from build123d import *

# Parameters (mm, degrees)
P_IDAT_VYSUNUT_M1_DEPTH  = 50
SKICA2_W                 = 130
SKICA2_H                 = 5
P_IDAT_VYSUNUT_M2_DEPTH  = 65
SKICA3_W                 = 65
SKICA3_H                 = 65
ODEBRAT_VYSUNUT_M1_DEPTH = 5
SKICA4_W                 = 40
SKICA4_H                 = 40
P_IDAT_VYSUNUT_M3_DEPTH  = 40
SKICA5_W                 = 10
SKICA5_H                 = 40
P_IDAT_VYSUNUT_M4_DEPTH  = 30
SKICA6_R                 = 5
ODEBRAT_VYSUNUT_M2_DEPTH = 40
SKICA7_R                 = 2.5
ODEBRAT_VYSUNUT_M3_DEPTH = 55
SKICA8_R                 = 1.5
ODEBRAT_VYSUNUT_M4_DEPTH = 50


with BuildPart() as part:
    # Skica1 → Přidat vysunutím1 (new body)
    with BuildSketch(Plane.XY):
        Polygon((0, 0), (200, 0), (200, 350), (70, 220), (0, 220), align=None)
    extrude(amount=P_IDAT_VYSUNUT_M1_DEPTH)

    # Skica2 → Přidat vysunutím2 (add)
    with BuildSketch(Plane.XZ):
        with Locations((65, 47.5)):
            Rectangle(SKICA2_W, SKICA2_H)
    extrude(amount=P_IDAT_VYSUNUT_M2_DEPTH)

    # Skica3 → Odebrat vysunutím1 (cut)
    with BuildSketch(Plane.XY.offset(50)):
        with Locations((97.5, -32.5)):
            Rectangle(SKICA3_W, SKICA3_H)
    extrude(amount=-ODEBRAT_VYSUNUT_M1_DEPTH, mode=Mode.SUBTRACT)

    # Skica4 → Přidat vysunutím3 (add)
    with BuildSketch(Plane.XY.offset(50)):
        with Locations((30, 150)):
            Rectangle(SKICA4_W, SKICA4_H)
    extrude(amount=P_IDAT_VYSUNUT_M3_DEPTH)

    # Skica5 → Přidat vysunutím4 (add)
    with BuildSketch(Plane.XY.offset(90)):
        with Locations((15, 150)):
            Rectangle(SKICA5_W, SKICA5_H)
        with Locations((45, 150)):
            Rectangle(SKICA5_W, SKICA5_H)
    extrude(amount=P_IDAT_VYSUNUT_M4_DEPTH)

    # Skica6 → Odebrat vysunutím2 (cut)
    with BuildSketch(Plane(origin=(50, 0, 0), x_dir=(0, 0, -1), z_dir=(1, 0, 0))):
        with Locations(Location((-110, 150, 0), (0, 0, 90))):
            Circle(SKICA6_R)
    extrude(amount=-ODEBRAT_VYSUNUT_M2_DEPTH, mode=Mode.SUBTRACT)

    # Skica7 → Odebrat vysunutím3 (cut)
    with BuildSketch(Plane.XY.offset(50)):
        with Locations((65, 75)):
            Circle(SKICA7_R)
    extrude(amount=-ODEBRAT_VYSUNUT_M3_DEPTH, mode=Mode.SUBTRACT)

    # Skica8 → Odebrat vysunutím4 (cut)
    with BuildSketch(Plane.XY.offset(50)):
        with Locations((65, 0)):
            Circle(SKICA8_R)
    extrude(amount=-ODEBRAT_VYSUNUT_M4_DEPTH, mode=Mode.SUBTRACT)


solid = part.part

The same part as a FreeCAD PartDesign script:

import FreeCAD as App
import Part
import Sketcher
from FreeCAD import Vector
Q = App.Units.Quantity


def add_polygon(sketch, points):
    """Adds a closed chain of lines whose ends are joined by coincident constraints."""
    first, n = sketch.GeometryCount, len(points)
    for a, b in zip(points, points[1:] + points[:1]):
        sketch.addGeometry(Part.LineSegment(App.Vector(*a, 0), App.Vector(*b, 0)), False)
    for i in range(n):
        sketch.addConstraint(Sketcher.Constraint("Coincident", first + i, 2, first + (i + 1) % n, 1))

doc = App.newDocument("Part")
body = doc.addObject("PartDesign::Body", "Body")

sketch1 = body.newObject("Sketcher::SketchObject", "Sketch")
sketch1.AttachmentSupport = (doc.getObject("XY_Plane"), [""])
sketch1.MapMode = "FlatFace"
add_polygon(sketch1, [(0, 0), (200, 0), (200, 350), (70, 220), (0, 220)])
sketch1.addConstraint([
    Sketcher.Constraint("Horizontal", 0),
    Sketcher.Constraint("Vertical", 1),
    Sketcher.Constraint("Horizontal", 3),
    Sketcher.Constraint("Vertical", 4),
    Sketcher.Constraint("Coincident", 4, 2, -1, 1),
    Sketcher.Constraint("DistanceX", 0, 1, 0, 2, Q("200 mm")),
    Sketcher.Constraint("DistanceX", 3, 2, 3, 1, Q("70 mm")),
    Sketcher.Constraint("DistanceY", 1, 1, 1, 2, Q("350 mm")),
    Sketcher.Constraint("DistanceY", 4, 2, 4, 1, Q("220 mm")),
])
pad1 = body.newObject("PartDesign::Pad", "Pad")
pad1.Profile = sketch1
pad1.Length = 50

sketch2 = body.newObject("Sketcher::SketchObject", "Sketch001")
sketch2.AttachmentSupport = (doc.getObject("XZ_Plane"), [""])
sketch2.MapMode = "FlatFace"
add_polygon(sketch2, [(0, 50), (0, 45), (130, 45), (130, 50)])
sketch2.addConstraint([
    Sketcher.Constraint("Vertical", 0),
    Sketcher.Constraint("Horizontal", 1),
    Sketcher.Constraint("Vertical", 2),
    Sketcher.Constraint("Horizontal", 3),
    Sketcher.Constraint("PointOnObject", 0, 2, -2),
    Sketcher.Constraint("DistanceX", 1, 1, 1, 2, Q("130 mm")),
    Sketcher.Constraint("DistanceY", 0, 2, 0, 1, Q("5 mm")),
    Sketcher.Constraint("DistanceY", -1, 1, 0, 2, Q("45 mm")),
])
pad2 = body.newObject("PartDesign::Pad", "Pad001")
pad2.Profile = sketch2
pad2.Length = 65

sketch3 = body.newObject("Sketcher::SketchObject", "Sketch002")
sketch3.AttachmentSupport = (doc.getObject("XY_Plane"), [""])
sketch3.MapMode = "FlatFace"
sketch3.AttachmentOffset = App.Placement(Vector(0, 0, 50), App.Rotation())
add_polygon(sketch3, [(65, 0), (65, -65), (130, -65), (130, 0)])
sketch3.addConstraint([
    Sketcher.Constraint("Vertical", 0),
    Sketcher.Constraint("Horizontal", 1),
    Sketcher.Constraint("Vertical", 2),
    Sketcher.Constraint("Horizontal", 3),
    Sketcher.Constraint("PointOnObject", 2, 2, -1),
    Sketcher.Constraint("Equal", 3, 0),
    Sketcher.Constraint("DistanceX", 1, 1, 1, 2, Q("65 mm")),
    Sketcher.Constraint("DistanceX", -1, 1, 0, 2, Q("65 mm")),
])
pocket1 = body.newObject("PartDesign::Pocket", "Pocket")
pocket1.Profile = sketch3
pocket1.Length = 5

sketch4 = body.newObject("Sketcher::SketchObject", "Sketch003")
sketch4.AttachmentSupport = (doc.getObject("XY_Plane"), [""])
sketch4.MapMode = "FlatFace"
sketch4.AttachmentOffset = App.Placement(Vector(0, 0, 50), App.Rotation())
add_polygon(sketch4, [(10, 170), (10, 130), (50, 130), (50, 170)])
sketch4.addConstraint([
    Sketcher.Constraint("Vertical", 0),
    Sketcher.Constraint("Horizontal", 1),
    Sketcher.Constraint("Vertical", 2),
    Sketcher.Constraint("Horizontal", 3),
    Sketcher.Constraint("Equal", 3, 0),
    Sketcher.Constraint("DistanceX", 1, 1, 1, 2, Q("40 mm")),
    Sketcher.Constraint("DistanceX", -1, 1, 0, 2, Q("10 mm")),
    Sketcher.Constraint("DistanceY", -1, 1, 0, 2, Q("130 mm")),
])
pad3 = body.newObject("PartDesign::Pad", "Pad002")
pad3.Profile = sketch4
pad3.Length = 40

sketch5 = body.newObject("Sketcher::SketchObject", "Sketch004")
sketch5.AttachmentSupport = (doc.getObject("XY_Plane"), [""])
sketch5.MapMode = "FlatFace"
sketch5.AttachmentOffset = App.Placement(Vector(0, 0, 90), App.Rotation())
add_polygon(sketch5, [(10, 170), (10, 130), (20, 130), (20, 170)])
add_polygon(sketch5, [(40, 170), (40, 130), (50, 130), (50, 170)])
sketch5.addConstraint([
    Sketcher.Constraint("Vertical", 0),
    Sketcher.Constraint("Horizontal", 1),
    Sketcher.Constraint("Vertical", 2),
    Sketcher.Constraint("Horizontal", 3),
    Sketcher.Constraint("Vertical", 4),
    Sketcher.Constraint("Horizontal", 5),
    Sketcher.Constraint("Vertical", 6),
    Sketcher.Constraint("Horizontal", 7),
    Sketcher.Constraint("Horizontal", 1, 2, 4, 2),
    Sketcher.Constraint("Horizontal", 3, 2, 6, 2),
    Sketcher.Constraint("Equal", 3, 5),
    Sketcher.Constraint("DistanceX", 1, 1, 1, 2, Q("10 mm")),
    Sketcher.Constraint("DistanceY", 0, 2, 0, 1, Q("40 mm")),
    Sketcher.Constraint("DistanceX", -1, 1, 0, 2, Q("10 mm")),
    Sketcher.Constraint("DistanceY", -1, 1, 0, 2, Q("130 mm")),
    Sketcher.Constraint("DistanceX", -1, 1, 4, 2, Q("40 mm")),
])
pad4 = body.newObject("PartDesign::Pad", "Pad003")
pad4.Profile = sketch5
pad4.Length = 30

sketch6 = body.newObject("Sketcher::SketchObject", "Sketch005")
sketch6.AttachmentSupport = (doc.getObject("YZ_Plane"), [""])
sketch6.MapMode = "FlatFace"
sketch6.AttachmentOffset = App.Placement(Vector(0, 0, 50), App.Rotation())
sketch6.addGeometry(Part.Circle(Vector(150, 110, 0), Vector(0, 0, 1), 5), False)
sketch6.addConstraint([
    Sketcher.Constraint("Diameter", 0, Q("10 mm")),
    Sketcher.Constraint("DistanceX", -1, 1, 0, 3, Q("150 mm")),
    Sketcher.Constraint("DistanceY", -1, 1, 0, 3, Q("110 mm")),
])
pocket2 = body.newObject("PartDesign::Pocket", "Pocket001")
pocket2.Profile = sketch6
pocket2.Length = 40

sketch7 = body.newObject("Sketcher::SketchObject", "Sketch006")
sketch7.AttachmentSupport = (doc.getObject("XY_Plane"), [""])
sketch7.MapMode = "FlatFace"
sketch7.AttachmentOffset = App.Placement(Vector(0, 0, 50), App.Rotation())
sketch7.addGeometry(Part.Circle(Vector(65, 75, 0), Vector(0, 0, 1), 2.5), False)
sketch7.addConstraint([
    Sketcher.Constraint("Diameter", 0, Q("5 mm")),
    Sketcher.Constraint("DistanceX", -1, 1, 0, 3, Q("65 mm")),
    Sketcher.Constraint("DistanceY", -1, 1, 0, 3, Q("75 mm")),
])
pocket3 = body.newObject("PartDesign::Pocket", "Pocket002")
pocket3.Profile = sketch7
pocket3.Length = 55

sketch8 = body.newObject("Sketcher::SketchObject", "Sketch007")
sketch8.AttachmentSupport = (doc.getObject("XY_Plane"), [""])
sketch8.MapMode = "FlatFace"
sketch8.AttachmentOffset = App.Placement(Vector(0, 0, 50), App.Rotation())
sketch8.addGeometry(Part.Circle(Vector(65, 0, 0), Vector(0, 0, 1), 1.5), False)
sketch8.addConstraint([
    Sketcher.Constraint("PointOnObject", 0, 3, -1),
    Sketcher.Constraint("Diameter", 0, Q("3 mm")),
    Sketcher.Constraint("DistanceX", -1, 1, 0, 3, Q("65 mm")),
])
pocket4 = body.newObject("PartDesign::Pocket", "Pocket003")
pocket4.Profile = sketch8
pocket4.Length = 50

doc.recompute()
